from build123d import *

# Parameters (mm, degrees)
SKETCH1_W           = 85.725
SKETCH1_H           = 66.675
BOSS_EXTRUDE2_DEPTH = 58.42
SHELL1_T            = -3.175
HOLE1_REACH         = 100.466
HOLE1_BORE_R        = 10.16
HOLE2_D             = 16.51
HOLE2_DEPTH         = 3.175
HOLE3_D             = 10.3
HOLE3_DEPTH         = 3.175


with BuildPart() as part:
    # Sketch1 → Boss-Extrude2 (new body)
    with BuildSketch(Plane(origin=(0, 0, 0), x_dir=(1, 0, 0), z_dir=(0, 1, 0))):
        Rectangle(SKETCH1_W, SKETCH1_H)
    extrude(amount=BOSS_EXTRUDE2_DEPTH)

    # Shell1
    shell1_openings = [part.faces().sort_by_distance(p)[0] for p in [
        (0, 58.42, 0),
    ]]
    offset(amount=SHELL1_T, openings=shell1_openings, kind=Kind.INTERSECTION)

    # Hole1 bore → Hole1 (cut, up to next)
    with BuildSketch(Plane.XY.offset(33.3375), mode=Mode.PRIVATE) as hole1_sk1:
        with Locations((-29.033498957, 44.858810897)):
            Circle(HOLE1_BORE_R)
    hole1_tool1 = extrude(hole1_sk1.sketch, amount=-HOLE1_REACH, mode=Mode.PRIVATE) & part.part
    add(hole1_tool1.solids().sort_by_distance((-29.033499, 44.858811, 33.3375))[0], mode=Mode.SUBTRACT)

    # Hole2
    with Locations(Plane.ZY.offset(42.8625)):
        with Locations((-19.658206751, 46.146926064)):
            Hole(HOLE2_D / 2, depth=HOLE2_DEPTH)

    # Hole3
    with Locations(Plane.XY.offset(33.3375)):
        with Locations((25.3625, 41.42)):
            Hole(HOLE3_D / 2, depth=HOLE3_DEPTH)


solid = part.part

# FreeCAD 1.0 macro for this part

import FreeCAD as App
import Part
import Sketcher

V = App.Vector
Q = App.Units.Quantity


def faces_at(feature, points):
    """Names of the faces that lie closest to the given points."""
    faces = feature.Shape.Faces
    near = lambda p: min(range(len(faces)), key=lambda i: faces[i].distToShape(Part.Vertex(*p))[0])
    return sorted({f"Face{near(p) + 1}" for p in points})


def add_polygon(sketch, points):
    """Adds a closed chain of lines whose ends are joined by coincident constraints."""
    first, n = sketch.GeometryCount, len(points)
    for a, b in zip(points, points[1:] + points[:1]):
        sketch.addGeometry(Part.LineSegment(App.Vector(*a, 0), App.Vector(*b, 0)), False)
    for i in range(n):
        sketch.addConstraint(Sketcher.Constraint("Coincident", first + i, 2, first + (i + 1) % n, 1))

doc = App.newDocument("Part")
body = doc.addObject("PartDesign::Body", "Body")

# Sketch on XZ plane
sketch1 = body.newObject("Sketcher::SketchObject", "Sketch")
sketch1.AttachmentSupport = (doc.getObject("XZ_Plane"), [""])
sketch1.MapMode = "FlatFace"
add_polygon(sketch1, [(-43, -33), (-43, 33), (43, 33), (43, -33)])  # lines 0-3
sketch1.addConstraint(Sketcher.Constraint("Vertical", 0))
sketch1.addConstraint(Sketcher.Constraint("Horizontal", 1))
sketch1.addConstraint(Sketcher.Constraint("Vertical", 2))
sketch1.addConstraint(Sketcher.Constraint("Horizontal", 3))
sketch1.addConstraint(Sketcher.Constraint("Symmetric", 0, 2, 2, 2, -1, 1))
sketch1.addConstraint(Sketcher.Constraint("DistanceX", 1, 1, 1, 2, Q("3.375 in")))
sketch1.addConstraint(Sketcher.Constraint("DistanceY", 0, 1, 0, 2, Q("2.625 in")))
pad1 = body.newObject("PartDesign::Pad", "Pad")
pad1.Profile = sketch1
pad1.Length = Q("2.3 in")
pad1.Reversed = True
doc.recompute()

thickness = body.newObject("PartDesign::Thickness", "Thickness")
thickness.Base = (pad1, faces_at(pad1, [(0, 58.42, 0)]))
thickness.Value = Q("0.125 in")
thickness.Reversed = True
thickness.Join = "Intersection"

# Sketch on XY plane
sketch2 = body.newObject("Sketcher::SketchObject", "Sketch001")
sketch2.AttachmentSupport = (doc.getObject("XY_Plane"), [""])
sketch2.MapMode = "FlatFace"
sketch2.AttachmentOffset = App.Placement(V(0, 0, 1.3125 * 25.4), App.Rotation())
sketch2.addGeometry(Part.Circle(V(-29, 45, 0), V(0, 0, 1), 10), False)
sketch2.addConstraint(Sketcher.Constraint("Diameter", 0, Q("0.8 in")))
sketch2.addConstraint(Sketcher.Constraint("DistanceX", 0, 3, -1, 1, 29.033499))
sketch2.addConstraint(Sketcher.Constraint("DistanceY", -1, 1, 0, 3, 44.858811))
pocket1 = body.newObject("PartDesign::Pocket", "Pocket")
pocket1.Profile = sketch2
pocket1.Type = "UpToFirst"

# Sketch on YZ plane
sketch3 = body.newObject("Sketcher::SketchObject", "Sketch002")
sketch3.AttachmentSupport = (doc.getObject("YZ_Plane"), [""])
sketch3.MapMode = "FlatFace"
sketch3.AttachmentOffset = App.Placement(V(0, 0, -1.6875 * 25.4), App.Rotation())
sketch3.addGeometry(Part.Circle(V(46, -20, 0), V(0, 0, 1), 8), False)
sketch3.addConstraint(Sketcher.Constraint("Diameter", 0, Q("0.65 in")))
sketch3.addConstraint(Sketcher.Constraint("DistanceX", -1, 1, 0, 3, 46.146926))
sketch3.addConstraint(Sketcher.Constraint("DistanceY", 0, 3, -1, 1, 19.658207))
doc.recompute()
hole = body.newObject("PartDesign::Hole", "Hole")
hole.Profile = sketch3
hole.ThreadType = "None"
hole.Diameter = Q("0.65 in")
hole.DepthType = "Dimension"
hole.Depth = Q("0.125 in")
hole.DrillPoint = "Flat"
hole.Reversed = True

# Sketch on XY plane
sketch4 = body.newObject("Sketcher::SketchObject", "Sketch003")
sketch4.AttachmentSupport = (doc.getObject("XY_Plane"), [""])
sketch4.MapMode = "FlatFace"
sketch4.AttachmentOffset = App.Placement(V(0, 0, 1.3125 * 25.4), App.Rotation())
sketch4.addGeometry(Part.Circle(V(25, 41, 0), V(0, 0, 1), 5), False)
sketch4.addConstraint(Sketcher.Constraint("Diameter", 0, 10.3))
sketch4.addConstraint(Sketcher.Constraint("DistanceX", -1, 1, 0, 3, 25.3625))
sketch4.addConstraint(Sketcher.Constraint("DistanceY", -1, 1, 0, 3, 41.42))
doc.recompute()
hole2 = body.newObject("PartDesign::Hole", "Hole001")
hole2.Profile = sketch4
hole2.ThreadType = "None"
hole2.Diameter = 10.3
hole2.DepthType = "Dimension"
hole2.Depth = Q("0.125 in")
hole2.DrillPoint = "Flat"

doc.recompute()
